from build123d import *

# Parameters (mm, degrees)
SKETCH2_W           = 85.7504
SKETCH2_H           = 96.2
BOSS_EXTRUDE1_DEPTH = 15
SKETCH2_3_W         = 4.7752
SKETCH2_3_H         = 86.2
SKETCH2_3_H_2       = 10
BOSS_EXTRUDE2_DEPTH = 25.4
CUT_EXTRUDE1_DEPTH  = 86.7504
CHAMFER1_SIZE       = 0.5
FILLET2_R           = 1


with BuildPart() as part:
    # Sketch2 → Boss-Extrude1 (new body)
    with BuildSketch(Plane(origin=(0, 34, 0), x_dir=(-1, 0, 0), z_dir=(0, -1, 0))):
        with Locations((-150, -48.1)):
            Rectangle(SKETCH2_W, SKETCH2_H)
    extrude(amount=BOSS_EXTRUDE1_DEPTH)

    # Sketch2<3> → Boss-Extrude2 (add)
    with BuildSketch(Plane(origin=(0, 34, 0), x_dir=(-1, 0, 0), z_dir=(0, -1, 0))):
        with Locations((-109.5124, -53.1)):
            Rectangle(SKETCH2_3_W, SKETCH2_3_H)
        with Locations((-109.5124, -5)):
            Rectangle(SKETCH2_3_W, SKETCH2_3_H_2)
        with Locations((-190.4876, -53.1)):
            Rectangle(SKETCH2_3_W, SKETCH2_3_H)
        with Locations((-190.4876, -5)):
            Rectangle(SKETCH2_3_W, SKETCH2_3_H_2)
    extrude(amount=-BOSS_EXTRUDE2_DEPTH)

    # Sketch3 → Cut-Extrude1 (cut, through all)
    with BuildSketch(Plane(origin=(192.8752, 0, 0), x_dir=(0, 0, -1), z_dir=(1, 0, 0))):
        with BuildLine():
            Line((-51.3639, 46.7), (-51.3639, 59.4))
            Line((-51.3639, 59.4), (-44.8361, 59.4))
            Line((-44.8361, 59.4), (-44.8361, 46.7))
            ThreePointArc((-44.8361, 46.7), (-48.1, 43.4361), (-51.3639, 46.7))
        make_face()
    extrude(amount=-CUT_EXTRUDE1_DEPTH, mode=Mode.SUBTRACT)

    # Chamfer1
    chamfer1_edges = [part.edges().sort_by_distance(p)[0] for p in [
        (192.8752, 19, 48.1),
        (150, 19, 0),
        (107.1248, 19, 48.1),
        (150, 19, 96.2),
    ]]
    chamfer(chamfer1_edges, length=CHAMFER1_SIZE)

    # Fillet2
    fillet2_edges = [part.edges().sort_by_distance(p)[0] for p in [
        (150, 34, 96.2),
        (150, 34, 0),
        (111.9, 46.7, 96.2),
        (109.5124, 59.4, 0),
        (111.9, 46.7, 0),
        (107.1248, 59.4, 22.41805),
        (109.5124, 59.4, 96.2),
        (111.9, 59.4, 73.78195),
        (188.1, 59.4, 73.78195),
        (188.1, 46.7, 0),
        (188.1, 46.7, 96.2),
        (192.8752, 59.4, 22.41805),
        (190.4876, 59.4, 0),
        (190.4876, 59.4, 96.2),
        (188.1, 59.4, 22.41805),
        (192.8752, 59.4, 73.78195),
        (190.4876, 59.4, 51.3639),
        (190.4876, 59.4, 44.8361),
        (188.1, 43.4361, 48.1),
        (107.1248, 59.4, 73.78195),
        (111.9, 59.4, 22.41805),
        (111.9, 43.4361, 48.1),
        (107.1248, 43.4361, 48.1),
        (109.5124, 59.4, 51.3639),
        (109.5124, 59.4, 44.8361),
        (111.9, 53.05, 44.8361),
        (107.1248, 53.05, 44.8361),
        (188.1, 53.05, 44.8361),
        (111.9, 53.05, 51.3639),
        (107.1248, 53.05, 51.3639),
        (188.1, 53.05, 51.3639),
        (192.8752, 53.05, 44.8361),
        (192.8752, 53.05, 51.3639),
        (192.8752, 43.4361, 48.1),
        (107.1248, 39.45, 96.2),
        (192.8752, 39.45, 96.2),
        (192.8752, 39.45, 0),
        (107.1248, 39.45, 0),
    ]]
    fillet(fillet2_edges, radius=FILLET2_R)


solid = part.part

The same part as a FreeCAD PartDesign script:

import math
import FreeCAD as App
import Part
import Sketcher
from FreeCAD import Vector
Q = App.Units.Quantity


def edges_at(feature, points):
    """Names of the edges that pass closest to the given points."""
    edges = feature.Shape.Edges
    near = lambda p: min(range(len(edges)), key=lambda i: edges[i].distToShape(Part.Vertex(*p))[0])
    return sorted({f"Edge{near(p) + 1}" for p in points})


def add_polygon(sketch, points):
    """Adds a closed chain of lines whose ends are joined by coincident constraints."""
    first, n = sketch.GeometryCount, len(points)
    for a, b in zip(points, points[1:] + points[:1]):
        sketch.addGeometry(Part.LineSegment(App.Vector(*a, 0), App.Vector(*b, 0)), False)
    for i in range(n):
        sketch.addConstraint(Sketcher.Constraint("Coincident", first + i, 2, first + (i + 1) % n, 1))

doc = App.newDocument("Part")
body = doc.addObject("PartDesign::Body", "Body")

# Sketch on XZ plane
sketch1 = body.newObject("Sketcher::SketchObject", "Sketch")
sketch1.AttachmentSupport = (doc.getObject("XZ_Plane"), [""])
sketch1.MapMode = "FlatFace"
sketch1.AttachmentOffset = App.Placement(Vector(0, 0, -34), App.Rotation())
add_polygon(sketch1, [(193, 0), (193, 96), (107, 96), (107, 0)])  # lines 0-3
sketch1.addConstraint(Sketcher.Constraint("Vertical", 0))
sketch1.addConstraint(Sketcher.Constraint("Horizontal", 1))
sketch1.addConstraint(Sketcher.Constraint("Vertical", 2))
sketch1.addConstraint(Sketcher.Constraint("Horizontal", 3))
sketch1.addConstraint(Sketcher.Constraint("PointOnObject", 2, 2, -1))
sketch1.addConstraint(Sketcher.Constraint("DistanceX", 1, 2, 1, 1, Q("3.376 in")))
sketch1.addConstraint(Sketcher.Constraint("DistanceY", 0, 1, 0, 2, Q("96.2 mm")))
sketch1.addConstraint(Sketcher.Constraint("DistanceX", -1, 1, 0, 2, Q("192.8752 mm")))
pad1 = body.newObject("PartDesign::Pad", "Pad")
pad1.Profile = sketch1
pad1.Length = 15

# Sketch on XZ plane
sketch2 = body.newObject("Sketcher::SketchObject", "Sketch001")
sketch2.AttachmentSupport = (doc.getObject("XZ_Plane"), [""])
sketch2.MapMode = "FlatFace"
sketch2.AttachmentOffset = App.Placement(Vector(0, 0, -34), App.Rotation())
add_polygon(sketch2, [(111.9, 96.2), (107.1, 96.2), (107.1, 0), (111.9, 0)])  # lines 0-3
add_polygon(sketch2, [(192.9, 96.2), (188.1, 96.2), (188.1, 0), (192.9, 0)])  # lines 4-7
sketch2.addConstraint(Sketcher.Constraint("Horizontal", 0))
sketch2.addConstraint(Sketcher.Constraint("Vertical", 1))
sketch2.addConstraint(Sketcher.Constraint("Horizontal", 2))
sketch2.addConstraint(Sketcher.Constraint("Vertical", 3))
sketch2.addConstraint(Sketcher.Constraint("Horizontal", 4))
sketch2.addConstraint(Sketcher.Constraint("Vertical", 5))
sketch2.addConstraint(Sketcher.Constraint("Horizontal", 6))
sketch2.addConstraint(Sketcher.Constraint("Vertical", 7))
sketch2.addConstraint(Sketcher.Constraint("PointOnObject", 1, 2, -1))
sketch2.addConstraint(Sketcher.Constraint("PointOnObject", 5, 2, -1))
sketch2.addConstraint(Sketcher.Constraint("Horizontal", 3, 2, 4, 2))
sketch2.addConstraint(Sketcher.Constraint("Equal", 2, 4))
sketch2.addConstraint(Sketcher.Constraint("DistanceX", 3, 2, 4, 2, Q("3 in")))
sketch2.addConstraint(Sketcher.Constraint("DistanceX", 0, 2, 0, 1, Q("0.188 in")))
sketch2.addConstraint(Sketcher.Constraint("DistanceY", 1, 2, 1, 1, Q("96.2 mm")))
sketch2.addConstraint(Sketcher.Constraint("DistanceX", -1, 1, 0, 2, Q("107.1248 mm")))
pad2 = body.newObject("PartDesign::Pad", "Pad001")
pad2.Profile = sketch2
pad2.Length = Q("1 in")
pad2.Reversed = True

# Sketch on YZ plane
sketch3 = body.newObject("Sketcher::SketchObject", "Sketch002")
sketch3.AttachmentSupport = (doc.getObject("YZ_Plane"), [""])
sketch3.MapMode = "FlatFace"
sketch3.AttachmentOffset = App.Placement(Vector(0, 0, 192.8752), App.Rotation())
sketch3.addGeometry(Part.LineSegment(Vector(59.4, 51.4, 0), Vector(46.7, 51.4, 0)), False)
sketch3.addGeometry(Part.ArcOfCircle(Part.Circle(Vector(46.7, 48.1, 0), Vector(0, 0, 1), 3.3), math.radians(90), math.radians(270)), False)
sketch3.addGeometry(Part.LineSegment(Vector(46.7, 44.8, 0), Vector(59.4, 44.8, 0)), False)
sketch3.addGeometry(Part.LineSegment(Vector(59.4, 44.8, 0), Vector(59.4, 51.4, 0)), False)
sketch3.addConstraint(Sketcher.Constraint("Tangent", 0, 2, 1, 1))
sketch3.addConstraint(Sketcher.Constraint("Tangent", 1, 2, 2, 1))
sketch3.addConstraint(Sketcher.Constraint("Coincident", 2, 2, 3, 1))
sketch3.addConstraint(Sketcher.Constraint("Coincident", 3, 2, 0, 1))
sketch3.addConstraint(Sketcher.Constraint("Horizontal", 0))
sketch3.addConstraint(Sketcher.Constraint("Horizontal", 2))
sketch3.addConstraint(Sketcher.Constraint("Vertical", 3))
sketch3.addConstraint(Sketcher.Constraint("DistanceX", 0, 2, 0, 1, Q("0.5 in")))
sketch3.addConstraint(Sketcher.Constraint("Radius", 1, Q("0.1285 in")))
sketch3.addConstraint(Sketcher.Constraint("DistanceX", -1, 1, 1, 3, Q("46.7 mm")))
sketch3.addConstraint(Sketcher.Constraint("DistanceY", -1, 1, 1, 3, Q("48.1 mm")))
pocket1 = body.newObject("PartDesign::Pocket", "Pocket")
pocket1.Profile = sketch3
pocket1.Type = "ThroughAll"
doc.recompute()

chamfer = body.newObject("PartDesign::Chamfer", "Chamfer")
chamfer.Base = (pocket1, edges_at(pocket1, [
    (192.875, 19, 48.1),
    (150, 19, 0),
    (107.125, 19, 48.1),
    (150, 19, 96.2),
]))
chamfer.Size = 0.5
doc.recompute()

fillet = body.newObject("PartDesign::Fillet", "Fillet")
fillet.Base = (chamfer, edges_at(chamfer, [
    (150, 34, 96.2),
    (150, 34, 0),
    (111.9, 46.7, 96.2),
    (109.512, 59.4, 0),
    (111.9, 46.7, 0),
    (107.125, 59.4, 22.418),
    (109.512, 59.4, 96.2),
    (111.9, 59.4, 73.782),
    (188.1, 59.4, 73.782),
    (188.1, 46.7, 0),
    (188.1, 46.7, 96.2),
    (192.875, 59.4, 22.418),
    (190.488, 59.4, 0),
    (190.488, 59.4, 96.2),
    (188.1, 59.4, 22.418),
    (192.875, 59.4, 73.782),
    (190.488, 59.4, 51.364),
    (190.488, 59.4, 44.836),
    (188.1, 43.436, 48.1),
    (107.125, 59.4, 73.782),
    (111.9, 59.4, 22.418),
    (111.9, 43.436, 48.1),
    (107.125, 43.436, 48.1),
    (109.512, 59.4, 51.364),
    (109.512, 59.4, 44.836),
    (111.9, 53.05, 44.836),
    (107.125, 53.05, 44.836),
    (188.1, 53.05, 44.836),
    (111.9, 53.05, 51.364),
    (107.125, 53.05, 51.364),
    (188.1, 53.05, 51.364),
    (192.875, 53.05, 44.836),
    (192.875, 53.05, 51.364),
    (192.875, 43.436, 48.1),
    (107.125, 39.45, 96.2),
    (192.875, 39.45, 96.2),
    (192.875, 39.45, 0),
    (107.125, 39.45, 0),
]))
fillet.Radius = 1

doc.recompute()
